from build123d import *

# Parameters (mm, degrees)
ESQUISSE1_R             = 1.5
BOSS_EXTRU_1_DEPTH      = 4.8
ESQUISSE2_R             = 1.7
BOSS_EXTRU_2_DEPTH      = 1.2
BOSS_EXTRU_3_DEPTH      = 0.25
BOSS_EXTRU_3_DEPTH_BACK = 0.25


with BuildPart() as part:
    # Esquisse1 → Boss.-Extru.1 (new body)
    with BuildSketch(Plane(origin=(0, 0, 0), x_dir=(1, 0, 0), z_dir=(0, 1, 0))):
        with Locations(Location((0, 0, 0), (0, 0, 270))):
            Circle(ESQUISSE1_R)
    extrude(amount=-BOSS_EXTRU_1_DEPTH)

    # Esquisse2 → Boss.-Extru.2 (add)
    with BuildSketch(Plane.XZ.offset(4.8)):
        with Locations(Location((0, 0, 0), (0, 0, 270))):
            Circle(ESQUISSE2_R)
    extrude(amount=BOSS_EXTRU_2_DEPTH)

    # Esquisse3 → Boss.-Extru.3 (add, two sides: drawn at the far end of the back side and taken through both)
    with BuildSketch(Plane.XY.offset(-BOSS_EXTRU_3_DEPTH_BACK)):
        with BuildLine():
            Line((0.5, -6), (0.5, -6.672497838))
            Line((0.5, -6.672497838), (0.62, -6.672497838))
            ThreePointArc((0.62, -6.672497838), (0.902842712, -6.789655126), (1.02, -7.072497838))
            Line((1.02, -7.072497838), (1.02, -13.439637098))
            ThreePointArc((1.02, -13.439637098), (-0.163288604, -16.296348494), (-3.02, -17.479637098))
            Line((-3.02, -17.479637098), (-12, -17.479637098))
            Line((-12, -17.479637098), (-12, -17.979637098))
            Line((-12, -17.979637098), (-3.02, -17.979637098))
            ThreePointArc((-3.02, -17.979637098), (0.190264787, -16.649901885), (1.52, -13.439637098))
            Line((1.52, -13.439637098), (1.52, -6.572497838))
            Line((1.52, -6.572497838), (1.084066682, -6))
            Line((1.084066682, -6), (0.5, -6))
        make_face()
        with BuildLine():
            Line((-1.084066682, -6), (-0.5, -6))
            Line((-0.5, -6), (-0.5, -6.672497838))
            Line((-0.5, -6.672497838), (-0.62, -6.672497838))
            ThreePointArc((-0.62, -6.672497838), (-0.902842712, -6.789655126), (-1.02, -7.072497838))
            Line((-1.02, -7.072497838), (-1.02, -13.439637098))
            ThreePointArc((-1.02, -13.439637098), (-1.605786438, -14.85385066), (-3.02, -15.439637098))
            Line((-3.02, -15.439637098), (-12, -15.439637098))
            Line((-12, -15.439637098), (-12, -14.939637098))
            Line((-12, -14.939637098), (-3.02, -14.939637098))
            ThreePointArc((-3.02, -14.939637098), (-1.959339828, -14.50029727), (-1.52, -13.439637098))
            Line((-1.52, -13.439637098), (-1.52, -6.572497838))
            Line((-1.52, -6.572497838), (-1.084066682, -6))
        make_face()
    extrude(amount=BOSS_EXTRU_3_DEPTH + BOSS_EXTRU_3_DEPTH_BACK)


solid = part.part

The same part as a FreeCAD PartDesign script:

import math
import FreeCAD as App
import Part
import Sketcher

doc = App.newDocument("Part")
body = doc.addObject("PartDesign::Body", "Body")

# Sketch on XZ plane
sketch1 = doc.addObject("Sketcher::SketchObject", "Sketch")
body.addObject(sketch1)
sketch1.AttachmentSupport = (doc.XZ_Plane, [""])
sketch1.MapMode = "FlatFace"
sketch1.addGeometry(Part.Circle(App.Vector(0, 0, 0), App.Vector(0, 0, 1), 1.5), False)
sketch1.addConstraint(Sketcher.Constraint("Coincident", 0, 3, -1, 1))
sketch1.addConstraint(Sketcher.Constraint("Diameter", 0, 3.0))
pad1 = doc.addObject("PartDesign::Pad", "Pad")
body.addObject(pad1)
pad1.Profile = sketch1
pad1.Length = 4.8

# Sketch on XZ plane
sketch2 = doc.addObject("Sketcher::SketchObject", "Sketch001")
body.addObject(sketch2)
sketch2.AttachmentSupport = (doc.XZ_Plane, [""])
sketch2.MapMode = "FlatFace"
sketch2.AttachmentOffset = App.Placement(App.Vector(0, 0, 4.8), App.Rotation())
sketch2.addGeometry(Part.Circle(App.Vector(0, 0, 0), App.Vector(0, 0, 1), 1.7), False)
sketch2.addConstraint(Sketcher.Constraint("Coincident", 0, 3, -1, 1))
sketch2.addConstraint(Sketcher.Constraint("Diameter", 0, 3.4))
pad2 = doc.addObject("PartDesign::Pad", "Pad001")
body.addObject(pad2)
pad2.Profile = sketch2
pad2.Length = 1.2

# Sketch on XY plane
sketch3 = doc.addObject("Sketcher::SketchObject", "Sketch002")
body.addObject(sketch3)
sketch3.AttachmentSupport = (doc.XY_Plane, [""])
sketch3.MapMode = "FlatFace"
sketch3.addGeometry(Part.LineSegment(App.Vector(0.5, -6, 0), App.Vector(0.5, -6.67, 0)), False)
sketch3.addGeometry(Part.LineSegment(App.Vector(0.5, -6.67, 0), App.Vector(0.62, -6.67, 0)), False)
sketch3.addGeometry(Part.ArcOfCircle(Part.Circle(App.Vector(0.62, -7.07, 0), App.Vector(0, 0, 1), 0.4), math.radians(0), math.radians(90)), False)
sketch3.addGeometry(Part.LineSegment(App.Vector(1.02, -7.07, 0), App.Vector(1.02, -13.44, 0)), False)
sketch3.addGeometry(Part.ArcOfCircle(Part.Circle(App.Vector(-3.02, -13.44, 0), App.Vector(0, 0, 1), 4.04), math.radians(-90), math.radians(0)), False)
sketch3.addGeometry(Part.LineSegment(App.Vector(-3.02, -17.48, 0), App.Vector(-12, -17.48, 0)), False)
sketch3.addGeometry(Part.LineSegment(App.Vector(-12, -17.48, 0), App.Vector(-12, -17.98, 0)), False)
sketch3.addGeometry(Part.LineSegment(App.Vector(-12, -17.98, 0), App.Vector(-3.02, -17.98, 0)), False)
sketch3.addGeometry(Part.ArcOfCircle(Part.Circle(App.Vector(-3.02, -13.44, 0), App.Vector(0, 0, 1), 4.54), math.radians(-90), math.radians(0)), False)
sketch3.addGeometry(Part.LineSegment(App.Vector(1.52, -13.44, 0), App.Vector(1.52, -6.57, 0)), False)
sketch3.addGeometry(Part.LineSegment(App.Vector(1.52, -6.57, 0), App.Vector(1.08, -6, 0)), False)
sketch3.addGeometry(Part.LineSegment(App.Vector(1.08, -6, 0), App.Vector(0.5, -6, 0)), False)
sketch3.addGeometry(Part.LineSegment(App.Vector(-0.5, -6, 0), App.Vector(-1.08, -6, 0)), False)
sketch3.addGeometry(Part.LineSegment(App.Vector(-1.08, -6, 0), App.Vector(-1.52, -6.57, 0)), False)
sketch3.addGeometry(Part.LineSegment(App.Vector(-1.52, -6.57, 0), App.Vector(-1.52, -13.44, 0)), False)
sketch3.addGeometry(Part.ArcOfCircle(Part.Circle(App.Vector(-3.02, -13.44, 0), App.Vector(0, 0, 1), 1.5), math.radians(-90), math.radians(0)), False)
sketch3.addGeometry(Part.LineSegment(App.Vector(-3.02, -14.94, 0), App.Vector(-12, -14.94, 0)), False)
sketch3.addGeometry(Part.LineSegment(App.Vector(-12, -14.94, 0), App.Vector(-12, -15.44, 0)), False)
sketch3.addGeometry(Part.LineSegment(App.Vector(-12, -15.44, 0), App.Vector(-3.02, -15.44, 0)), False)
sketch3.addGeometry(Part.ArcOfCircle(Part.Circle(App.Vector(-3.02, -13.44, 0), App.Vector(0, 0, 1), 2), math.radians(-90), math.radians(0)), False)
sketch3.addGeometry(Part.LineSegment(App.Vector(-1.02, -13.44, 0), App.Vector(-1.02, -7.07, 0)), False)
sketch3.addGeometry(Part.ArcOfCircle(Part.Circle(App.Vector(-0.62, -7.07, 0), App.Vector(0, 0, 1), 0.4), math.radians(90), math.radians(180)), False)
sketch3.addGeometry(Part.LineSegment(App.Vector(-0.62, -6.67, 0), App.Vector(-0.5, -6.67, 0)), False)
sketch3.addGeometry(Part.LineSegment(App.Vector(-0.5, -6.67, 0), App.Vector(-0.5, -6, 0)), False)
sketch3.addConstraint(Sketcher.Constraint("Coincident", 0, 2, 1, 1))
sketch3.addConstraint(Sketcher.Constraint("Tangent", 1, 2, 2, 2))
sketch3.addConstraint(Sketcher.Constraint("Tangent", 2, 1, 3, 1))
sketch3.addConstraint(Sketcher.Constraint("Tangent", 3, 2, 4, 2))
sketch3.addConstraint(Sketcher.Constraint("Tangent", 4, 1, 5, 1))
sketch3.addConstraint(Sketcher.Constraint("Coincident", 5, 2, 6, 1))
sketch3.addConstraint(Sketcher.Constraint("Coincident", 6, 2, 7, 1))
sketch3.addConstraint(Sketcher.Constraint("Tangent", 7, 2, 8, 1))
sketch3.addConstraint(Sketcher.Constraint("Tangent", 8, 2, 9, 1))
sketch3.addConstraint(Sketcher.Constraint("Coincident", 9, 2, 10, 1))
sketch3.addConstraint(Sketcher.Constraint("Coincident", 10, 2, 11, 1))
sketch3.addConstraint(Sketcher.Constraint("Coincident", 11, 2, 0, 1))
sketch3.addConstraint(Sketcher.Constraint("Coincident", 12, 2, 13, 1))
sketch3.addConstraint(Sketcher.Constraint("Coincident", 13, 2, 14, 1))
sketch3.addConstraint(Sketcher.Constraint("Tangent", 14, 2, 15, 2))
sketch3.addConstraint(Sketcher.Constraint("Tangent", 15, 1, 16, 1))
sketch3.addConstraint(Sketcher.Constraint("Coincident", 16, 2, 17, 1))
sketch3.addConstraint(Sketcher.Constraint("Coincident", 17, 2, 18, 1))
sketch3.addConstraint(Sketcher.Constraint("Tangent", 18, 2, 19, 1))
sketch3.addConstraint(Sketcher.Constraint("Tangent", 19, 2, 20, 1))
sketch3.addConstraint(Sketcher.Constraint("Tangent", 20, 2, 21, 2))
sketch3.addConstraint(Sketcher.Constraint("Tangent", 21, 1, 22, 1))
sketch3.addConstraint(Sketcher.Constraint("Coincident", 22, 2, 23, 1))
sketch3.addConstraint(Sketcher.Constraint("Coincident", 23, 2, 12, 1))
sketch3.addConstraint(Sketcher.Constraint("Vertical", 0))
sketch3.addConstraint(Sketcher.Constraint("Horizontal", 1))
sketch3.addConstraint(Sketcher.Constraint("Vertical", 3))
sketch3.addConstraint(Sketcher.Constraint("Horizontal", 5))
sketch3.addConstraint(Sketcher.Constraint("Vertical", 6))
sketch3.addConstraint(Sketcher.Constraint("Horizontal", 7))
sketch3.addConstraint(Sketcher.Constraint("Vertical", 9))
sketch3.addConstraint(Sketcher.Constraint("Horizontal", 11))
sketch3.addConstraint(Sketcher.Constraint("Horizontal", 12))
sketch3.addConstraint(Sketcher.Constraint("Vertical", 14))
sketch3.addConstraint(Sketcher.Constraint("Horizontal", 16))
sketch3.addConstraint(Sketcher.Constraint("Vertical", 17))
sketch3.addConstraint(Sketcher.Constraint("Horizontal", 18))
sketch3.addConstraint(Sketcher.Constraint("Vertical", 20))
sketch3.addConstraint(Sketcher.Constraint("Horizontal", 22))
sketch3.addConstraint(Sketcher.Constraint("Vertical", 23))
sketch3.addConstraint(Sketcher.Constraint("Coincident", 8, 3, 4, 3))
sketch3.addConstraint(Sketcher.Constraint("Coincident", 15, 3, 4, 3))
sketch3.addConstraint(Sketcher.Constraint("Coincident", 19, 3, 4, 3))
sketch3.addConstraint(Sketcher.Constraint("Equal", 2, 21))
sketch3.addConstraint(Sketcher.Constraint("Symmetric", 2, 3, 21, 3, -2))
sketch3.addConstraint(Sketcher.Constraint("Symmetric", 10, 2, 12, 2, -2))
sketch3.addConstraint(Sketcher.Constraint("Symmetric", 9, 2, 13, 2, -2))
sketch3.addConstraint(Sketcher.Constraint("Vertical", 6, 2, 16, 2))
sketch3.addConstraint(Sketcher.Constraint("Equal", 11, 12))
sketch3.addConstraint(Sketcher.Constraint("Radius", 19, 2.0))
sketch3.addConstraint(Sketcher.Constraint("Radius", 2, 0.4))
sketch3.addConstraint(Sketcher.Constraint("Radius", 15, 1.5))
sketch3.addConstraint(Sketcher.Constraint("Radius", 4, 4.04))
sketch3.addConstraint(Sketcher.Constraint("DistanceX", 5, 2, -1, 1, 12.0))
sketch3.addConstraint(Sketcher.Constraint("DistanceY", 10, 2, -1, 1, 6.0))
sketch3.addConstraint(Sketcher.Constraint("DistanceX", 22, 2, 0, 2, 1.0))
sketch3.addConstraint(Sketcher.Constraint("DistanceY", 2, 1, 9, 2, 0.5))
sketch3.addConstraint(Sketcher.Constraint("DistanceY", 3, 2, 3, 1, 6.367139))
sketch3.addConstraint(Sketcher.Constraint("DistanceX", 11, 2, 11, 1, 0.584067))
sketch3.addConstraint(Sketcher.Constraint("DistanceY", 0, 2, 0, 1, 0.672498))
pad3 = doc.addObject("PartDesign::Pad", "Pad002")
body.addObject(pad3)
pad3.Profile = sketch3
pad3.Type = "TwoLengths"
pad3.Length = 0.25
pad3.Length2 = 0.25

doc.recompute()
